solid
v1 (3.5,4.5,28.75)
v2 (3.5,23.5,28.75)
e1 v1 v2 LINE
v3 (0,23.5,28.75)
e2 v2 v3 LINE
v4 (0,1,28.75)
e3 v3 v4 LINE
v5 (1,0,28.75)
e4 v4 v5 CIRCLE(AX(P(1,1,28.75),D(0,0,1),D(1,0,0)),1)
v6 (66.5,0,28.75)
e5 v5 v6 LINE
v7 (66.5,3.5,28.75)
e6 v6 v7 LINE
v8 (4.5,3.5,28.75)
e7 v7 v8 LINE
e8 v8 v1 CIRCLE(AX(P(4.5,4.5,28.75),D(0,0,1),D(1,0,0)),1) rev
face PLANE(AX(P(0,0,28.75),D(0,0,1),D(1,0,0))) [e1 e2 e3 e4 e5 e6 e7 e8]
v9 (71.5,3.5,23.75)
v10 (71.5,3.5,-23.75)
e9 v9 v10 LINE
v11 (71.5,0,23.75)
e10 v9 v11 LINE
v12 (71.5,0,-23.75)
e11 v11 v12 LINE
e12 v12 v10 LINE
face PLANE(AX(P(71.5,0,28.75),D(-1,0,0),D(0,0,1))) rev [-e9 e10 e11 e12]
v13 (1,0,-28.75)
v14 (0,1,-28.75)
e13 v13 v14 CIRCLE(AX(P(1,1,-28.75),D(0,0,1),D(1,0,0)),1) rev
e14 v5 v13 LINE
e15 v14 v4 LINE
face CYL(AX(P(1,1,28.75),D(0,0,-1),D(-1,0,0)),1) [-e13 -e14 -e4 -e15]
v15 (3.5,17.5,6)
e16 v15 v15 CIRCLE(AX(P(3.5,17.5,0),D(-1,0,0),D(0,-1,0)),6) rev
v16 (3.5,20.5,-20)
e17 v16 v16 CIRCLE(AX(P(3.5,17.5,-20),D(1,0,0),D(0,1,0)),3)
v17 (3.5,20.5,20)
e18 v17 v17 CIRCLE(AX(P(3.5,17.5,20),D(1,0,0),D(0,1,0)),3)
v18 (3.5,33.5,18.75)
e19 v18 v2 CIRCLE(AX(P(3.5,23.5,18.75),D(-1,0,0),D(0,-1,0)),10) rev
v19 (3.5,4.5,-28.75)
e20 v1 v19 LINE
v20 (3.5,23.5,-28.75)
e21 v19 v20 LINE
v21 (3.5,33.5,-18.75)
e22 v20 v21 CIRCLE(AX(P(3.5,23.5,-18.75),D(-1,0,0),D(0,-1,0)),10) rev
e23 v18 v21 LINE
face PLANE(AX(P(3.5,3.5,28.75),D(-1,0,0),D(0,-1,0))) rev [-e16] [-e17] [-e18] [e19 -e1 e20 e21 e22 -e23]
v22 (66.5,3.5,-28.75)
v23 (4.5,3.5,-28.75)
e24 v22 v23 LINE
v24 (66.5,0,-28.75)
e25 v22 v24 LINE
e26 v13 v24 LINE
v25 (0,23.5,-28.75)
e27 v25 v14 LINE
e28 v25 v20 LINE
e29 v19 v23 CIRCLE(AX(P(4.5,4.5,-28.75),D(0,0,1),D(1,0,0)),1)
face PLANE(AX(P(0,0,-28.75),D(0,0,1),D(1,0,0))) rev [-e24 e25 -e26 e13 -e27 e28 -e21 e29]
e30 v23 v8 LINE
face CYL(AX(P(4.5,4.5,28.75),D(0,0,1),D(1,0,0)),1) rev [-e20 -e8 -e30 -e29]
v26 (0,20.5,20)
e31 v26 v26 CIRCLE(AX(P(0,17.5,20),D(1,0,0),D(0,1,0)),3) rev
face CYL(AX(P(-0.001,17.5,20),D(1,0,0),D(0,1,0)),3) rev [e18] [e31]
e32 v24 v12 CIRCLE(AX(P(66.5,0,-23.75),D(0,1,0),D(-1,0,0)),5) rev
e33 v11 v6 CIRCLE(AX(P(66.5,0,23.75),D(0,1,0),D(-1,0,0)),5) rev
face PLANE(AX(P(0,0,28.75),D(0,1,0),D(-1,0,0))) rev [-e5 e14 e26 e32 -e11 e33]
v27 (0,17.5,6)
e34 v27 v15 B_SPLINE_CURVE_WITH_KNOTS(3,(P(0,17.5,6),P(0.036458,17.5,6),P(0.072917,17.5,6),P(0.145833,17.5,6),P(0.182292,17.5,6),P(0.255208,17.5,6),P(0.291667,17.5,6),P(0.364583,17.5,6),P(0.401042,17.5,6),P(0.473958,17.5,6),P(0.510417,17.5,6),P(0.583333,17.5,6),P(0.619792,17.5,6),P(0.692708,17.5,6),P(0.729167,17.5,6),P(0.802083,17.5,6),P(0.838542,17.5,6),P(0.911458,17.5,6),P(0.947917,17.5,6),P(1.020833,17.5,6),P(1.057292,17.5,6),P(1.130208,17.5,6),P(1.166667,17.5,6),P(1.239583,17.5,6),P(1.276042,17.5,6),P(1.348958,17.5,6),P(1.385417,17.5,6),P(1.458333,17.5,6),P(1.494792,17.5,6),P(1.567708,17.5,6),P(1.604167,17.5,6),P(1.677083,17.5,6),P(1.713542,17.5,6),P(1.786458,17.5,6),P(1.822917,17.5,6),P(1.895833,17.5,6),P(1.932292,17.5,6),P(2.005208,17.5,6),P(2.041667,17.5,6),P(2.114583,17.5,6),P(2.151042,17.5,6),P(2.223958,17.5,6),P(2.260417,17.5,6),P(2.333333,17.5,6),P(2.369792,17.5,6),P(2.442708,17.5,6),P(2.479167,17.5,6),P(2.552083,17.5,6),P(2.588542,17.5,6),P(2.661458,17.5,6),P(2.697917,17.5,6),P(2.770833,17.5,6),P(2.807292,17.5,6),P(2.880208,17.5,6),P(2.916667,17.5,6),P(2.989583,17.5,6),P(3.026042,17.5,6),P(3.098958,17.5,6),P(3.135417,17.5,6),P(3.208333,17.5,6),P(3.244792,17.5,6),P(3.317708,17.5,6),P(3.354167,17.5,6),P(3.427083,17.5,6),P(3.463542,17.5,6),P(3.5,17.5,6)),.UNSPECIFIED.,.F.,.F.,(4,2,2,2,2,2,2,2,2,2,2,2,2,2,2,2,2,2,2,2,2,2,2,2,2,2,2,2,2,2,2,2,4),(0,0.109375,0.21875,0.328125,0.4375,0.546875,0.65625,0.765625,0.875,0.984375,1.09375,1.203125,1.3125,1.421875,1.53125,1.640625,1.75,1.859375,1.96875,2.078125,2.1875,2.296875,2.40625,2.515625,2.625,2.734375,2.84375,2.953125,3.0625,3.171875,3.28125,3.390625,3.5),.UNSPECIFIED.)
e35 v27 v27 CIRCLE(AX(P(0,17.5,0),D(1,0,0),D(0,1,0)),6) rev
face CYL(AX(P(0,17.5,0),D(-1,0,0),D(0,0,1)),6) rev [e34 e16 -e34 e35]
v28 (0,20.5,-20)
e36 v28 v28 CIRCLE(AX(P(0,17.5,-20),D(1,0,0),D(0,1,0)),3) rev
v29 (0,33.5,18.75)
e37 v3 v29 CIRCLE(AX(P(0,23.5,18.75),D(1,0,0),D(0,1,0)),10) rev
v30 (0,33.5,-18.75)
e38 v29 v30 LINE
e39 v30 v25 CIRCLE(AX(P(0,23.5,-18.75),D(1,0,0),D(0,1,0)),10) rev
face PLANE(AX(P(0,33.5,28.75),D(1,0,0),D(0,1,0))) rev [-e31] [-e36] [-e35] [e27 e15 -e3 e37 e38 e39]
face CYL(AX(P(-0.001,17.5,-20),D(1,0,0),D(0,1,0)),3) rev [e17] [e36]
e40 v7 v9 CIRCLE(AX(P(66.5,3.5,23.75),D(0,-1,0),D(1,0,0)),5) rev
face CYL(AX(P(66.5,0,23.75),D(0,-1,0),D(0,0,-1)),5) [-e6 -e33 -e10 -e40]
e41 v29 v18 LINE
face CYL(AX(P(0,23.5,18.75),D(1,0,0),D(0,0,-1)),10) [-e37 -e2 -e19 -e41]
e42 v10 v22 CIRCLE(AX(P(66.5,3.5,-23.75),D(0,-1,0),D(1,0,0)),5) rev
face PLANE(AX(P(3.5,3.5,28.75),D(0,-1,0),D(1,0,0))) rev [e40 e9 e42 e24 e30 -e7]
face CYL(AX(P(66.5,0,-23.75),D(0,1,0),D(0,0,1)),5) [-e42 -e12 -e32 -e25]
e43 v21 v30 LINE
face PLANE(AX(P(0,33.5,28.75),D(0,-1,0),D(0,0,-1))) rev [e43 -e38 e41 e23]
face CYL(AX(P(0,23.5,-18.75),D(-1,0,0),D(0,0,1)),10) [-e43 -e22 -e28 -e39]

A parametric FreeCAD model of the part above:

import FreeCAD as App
import Part
import Sketcher
Q = App.Units.Quantity


def edges_at(feature, points):
    """Names of the edges that pass closest to the given points."""
    edges = feature.Shape.Edges
    near = lambda p: min(range(len(edges)), key=lambda i: edges[i].distToShape(Part.Vertex(*p))[0])
    return sorted({f"Edge{near(p) + 1}" for p in points})

doc = App.newDocument("Part")
params = doc.addObject("Spreadsheet::Sheet", "Params")
for row, (alias, value) in enumerate([
    ("sketch1_width", "68 mm"),
    ("sketch1_height", "30 mm"),
    ("sketch1_width2", "71.5 mm"),
    ("pad1_length", "57.5 mm"),
    ("fillet_radius", "5 mm"),
    ("fillet2_radius", "10 mm"),
    ("fillet3_radius", "1 mm"),
    ("sketch2_diameter", "6 mm"),
    ("sketch3_diameter", "6 mm"),
    ("sketch4_diameter", "6 mm"),
    ("sketch5_diameter", "12 mm"),
], start=1):
    params.set(f"A{row}", alias)
    params.set(f"B{row}", "=" + value)
    params.setAlias(f"B{row}", alias)

body = doc.addObject("PartDesign::Body", "Body")

# Sketch on XY plane
sketch1 = body.newObject("Sketcher::SketchObject", "Sketch")
sketch1.AttachmentSupport = (doc.getObject("XY_Plane"), [""])
sketch1.MapMode = "FlatFace"
sketch1.addGeometry(Part.LineSegment(App.Vector(0, 33.5, 0), App.Vector(0, 0, 0)), False)
sketch1.addGeometry(Part.LineSegment(App.Vector(0, 0, 0), App.Vector(71.5, 0, 0)), False)
sketch1.addGeometry(Part.LineSegment(App.Vector(71.5, 0, 0), App.Vector(71.5, 3.5, 0)), False)
sketch1.addGeometry(Part.LineSegment(App.Vector(71.5, 3.5, 0), App.Vector(3.5, 3.5, 0)), False)
sketch1.addGeometry(Part.LineSegment(App.Vector(3.5, 3.5, 0), App.Vector(3.5, 33.5, 0)), False)
sketch1.addGeometry(Part.LineSegment(App.Vector(3.5, 33.5, 0), App.Vector(0, 33.5, 0)), False)
sketch1.addConstraint(Sketcher.Constraint("Coincident", 0, 2, 1, 1))
sketch1.addConstraint(Sketcher.Constraint("Coincident", 1, 2, 2, 1))
sketch1.addConstraint(Sketcher.Constraint("Coincident", 2, 2, 3, 1))
sketch1.addConstraint(Sketcher.Constraint("Coincident", 3, 2, 4, 1))
sketch1.addConstraint(Sketcher.Constraint("Coincident", 4, 2, 5, 1))
sketch1.addConstraint(Sketcher.Constraint("Coincident", 5, 2, 0, 1))
sketch1.addConstraint(Sketcher.Constraint("Vertical", 0))
sketch1.addConstraint(Sketcher.Constraint("Horizontal", 1))
sketch1.addConstraint(Sketcher.Constraint("Vertical", 2))
sketch1.addConstraint(Sketcher.Constraint("Horizontal", 3))
sketch1.addConstraint(Sketcher.Constraint("Vertical", 4))
sketch1.addConstraint(Sketcher.Constraint("Horizontal", 5))
sketch1.addConstraint(Sketcher.Constraint("Coincident", 0, 2, -1, 1))
sketch1.addConstraint(Sketcher.Constraint("Equal", 5, 2))
sketch1.addConstraint(Sketcher.Constraint("DistanceX", 3, 2, 3, 1, Q("68 mm")))
sketch1.addConstraint(Sketcher.Constraint("DistanceY", 4, 1, 4, 2, Q("30 mm")))
sketch1.addConstraint(Sketcher.Constraint("DistanceX", 1, 1, 1, 2, Q("71.5 mm")))
sketch1.setExpression("Constraints[14]", "Params.sketch1_width")
sketch1.setExpression("Constraints[15]", "Params.sketch1_height")
sketch1.setExpression("Constraints[16]", "Params.sketch1_width2")
pad1 = body.newObject("PartDesign::Pad", "Pad")
pad1.Profile = sketch1
pad1.setExpression("Length", "Params.pad1_length")
pad1.Midplane = True
doc.recompute()

fillet = body.newObject("PartDesign::Fillet", "Fillet")
fillet.Base = (pad1, edges_at(pad1, [(71.5, 1.75, -28.75), (71.5, 1.75, 28.75)]))
fillet.setExpression("Radius", "Params.fillet_radius")
doc.recompute()

fillet2 = body.newObject("PartDesign::Fillet", "Fillet001")
fillet2.Base = (fillet, edges_at(fillet, [(1.75, 33.5, 28.75), (1.75, 33.5, -28.75)]))
fillet2.setExpression("Radius", "Params.fillet2_radius")
doc.recompute()

fillet3 = body.newObject("PartDesign::Fillet", "Fillet002")
fillet3.Base = (fillet2, edges_at(fillet2, [(0, 0, 0), (3.5, 3.5, 0)]))
fillet3.setExpression("Radius", "Params.fillet3_radius")

# Sketch on YZ plane
sketch2 = body.newObject("Sketcher::SketchObject", "Sketch001")
sketch2.AttachmentSupport = (doc.getObject("YZ_Plane"), [""])
sketch2.MapMode = "FlatFace"
sketch2.AttachmentOffset = App.Placement(App.Vector(0, 0, 3.5), App.Rotation())
sketch2.addGeometry(Part.Circle(App.Vector(17.5, 0, 0), App.Vector(0, 0, 1), 3), False)
sketch2.addConstraint(Sketcher.Constraint("PointOnObject", 0, 3, -1))
sketch2.addConstraint(Sketcher.Constraint("Diameter", 0, Q("6 mm")))
sketch2.addConstraint(Sketcher.Constraint("DistanceX", -1, 1, 0, 3, Q("17.5 mm")))
sketch2.setExpression("Constraints[1]", "Params.sketch2_diameter")
pocket1 = body.newObject("PartDesign::Pocket", "Pocket")
pocket1.Profile = sketch2
pocket1.Type = "UpToFirst"

# Sketch on YZ plane
sketch3 = body.newObject("Sketcher::SketchObject", "Sketch002")
sketch3.AttachmentSupport = (doc.getObject("YZ_Plane"), [""])
sketch3.MapMode = "FlatFace"
sketch3.AttachmentOffset = App.Placement(App.Vector(0, 0, 3.5), App.Rotation())
sketch3.addGeometry(Part.Circle(App.Vector(17.5, -20, 0), App.Vector(0, 0, 1), 3), False)
sketch3.addConstraint(Sketcher.Constraint("Diameter", 0, Q("6 mm")))
sketch3.addConstraint(Sketcher.Constraint("DistanceY", 0, 3, -1, 1, Q("20 mm")))
sketch3.addConstraint(Sketcher.Constraint("DistanceX", -1, 1, 0, 3, Q("17.5 mm")))
sketch3.setExpression("Constraints[0]", "Params.sketch3_diameter")
pocket2 = body.newObject("PartDesign::Pocket", "Pocket001")
pocket2.Profile = sketch3
pocket2.Type = "UpToFirst"

# Sketch on YZ plane
sketch4 = body.newObject("Sketcher::SketchObject", "Sketch003")
sketch4.AttachmentSupport = (doc.getObject("YZ_Plane"), [""])
sketch4.MapMode = "FlatFace"
sketch4.AttachmentOffset = App.Placement(App.Vector(0, 0, 3.5), App.Rotation())
sketch4.addGeometry(Part.Circle(App.Vector(17.5, 20, 0), App.Vector(0, 0, 1), 3), False)
sketch4.addConstraint(Sketcher.Constraint("Diameter", 0, Q("6 mm")))
sketch4.addConstraint(Sketcher.Constraint("DistanceY", -1, 1, 0, 3, Q("20 mm")))
sketch4.addConstraint(Sketcher.Constraint("DistanceX", -1, 1, 0, 3, Q("17.5 mm")))
sketch4.setExpression("Constraints[0]", "Params.sketch4_diameter")
pocket3 = body.newObject("PartDesign::Pocket", "Pocket002")
pocket3.Profile = sketch4
pocket3.Type = "UpToFirst"

# Sketch on YZ plane
sketch5 = body.newObject("Sketcher::SketchObject", "Sketch004")
sketch5.AttachmentSupport = (doc.getObject("YZ_Plane"), [""])
sketch5.MapMode = "FlatFace"
sketch5.AttachmentOffset = App.Placement(App.Vector(0, 0, -28.4), App.Rotation())
sketch5.addGeometry(Part.Circle(App.Vector(17, 0, 0), App.Vector(0, 0, 1), 6), False)
sketch5.addConstraint(Sketcher.Constraint("PointOnObject", 0, 3, -1))
sketch5.addConstraint(Sketcher.Constraint("Diameter", 0, Q("12 mm")))
sketch5.addConstraint(Sketcher.Constraint("DistanceX", -1, 1, 0, 3, Q("17.5 mm")))
sketch5.setExpression("Constraints[1]", "Params.sketch5_diameter")
pocket4 = body.newObject("PartDesign::Pocket", "Pocket003")
pocket4.Profile = sketch5
pocket4.Type = "ThroughAll"
pocket4.Midplane = True

doc.recompute()
